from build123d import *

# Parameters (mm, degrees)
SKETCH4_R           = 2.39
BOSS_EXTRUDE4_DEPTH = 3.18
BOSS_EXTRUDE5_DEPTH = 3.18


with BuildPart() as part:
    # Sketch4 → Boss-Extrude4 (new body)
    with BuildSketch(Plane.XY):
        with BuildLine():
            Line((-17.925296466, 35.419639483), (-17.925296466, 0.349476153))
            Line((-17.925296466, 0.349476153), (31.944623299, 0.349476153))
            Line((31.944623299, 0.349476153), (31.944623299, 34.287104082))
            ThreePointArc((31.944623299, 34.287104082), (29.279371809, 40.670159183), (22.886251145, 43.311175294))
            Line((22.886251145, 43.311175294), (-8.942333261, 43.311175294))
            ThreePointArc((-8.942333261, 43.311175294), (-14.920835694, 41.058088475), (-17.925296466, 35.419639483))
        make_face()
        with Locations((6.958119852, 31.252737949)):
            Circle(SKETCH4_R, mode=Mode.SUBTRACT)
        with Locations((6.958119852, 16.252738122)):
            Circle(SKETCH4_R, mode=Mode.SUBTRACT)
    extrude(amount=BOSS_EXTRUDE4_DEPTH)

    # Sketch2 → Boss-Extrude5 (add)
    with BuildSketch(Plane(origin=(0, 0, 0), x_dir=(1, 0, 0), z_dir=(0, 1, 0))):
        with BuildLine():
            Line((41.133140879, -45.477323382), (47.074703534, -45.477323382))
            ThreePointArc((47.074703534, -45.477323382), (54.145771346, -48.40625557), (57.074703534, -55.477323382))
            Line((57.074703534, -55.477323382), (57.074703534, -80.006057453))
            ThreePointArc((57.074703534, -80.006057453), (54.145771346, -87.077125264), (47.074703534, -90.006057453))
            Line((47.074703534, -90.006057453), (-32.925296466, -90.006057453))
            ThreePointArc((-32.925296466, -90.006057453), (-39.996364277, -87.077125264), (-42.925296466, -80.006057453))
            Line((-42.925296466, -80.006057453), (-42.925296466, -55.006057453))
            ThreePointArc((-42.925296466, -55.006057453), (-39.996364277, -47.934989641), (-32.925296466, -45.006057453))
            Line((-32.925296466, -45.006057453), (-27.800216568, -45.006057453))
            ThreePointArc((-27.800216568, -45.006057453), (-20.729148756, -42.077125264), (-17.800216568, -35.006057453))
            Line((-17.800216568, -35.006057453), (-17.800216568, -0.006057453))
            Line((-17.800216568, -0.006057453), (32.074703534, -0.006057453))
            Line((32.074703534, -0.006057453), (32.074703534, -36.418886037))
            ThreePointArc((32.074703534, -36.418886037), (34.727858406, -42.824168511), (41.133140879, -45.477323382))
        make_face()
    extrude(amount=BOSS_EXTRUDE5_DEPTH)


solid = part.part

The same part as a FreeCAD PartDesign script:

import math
import FreeCAD as App
import Part
import Sketcher
from FreeCAD import Vector
Q = App.Units.Quantity

doc = App.newDocument("Part")
body = doc.addObject("PartDesign::Body", "Body")

# Sketch on XY plane
sketch1 = body.newObject("Sketcher::SketchObject", "Sketch")
sketch1.AttachmentSupport = (doc.getObject("XY_Plane"), [""])
sketch1.MapMode = "FlatFace"
sketch1.addGeometry([
    Part.LineSegment(Vector(-17.925296, 35.419639, 0), Vector(-17.925296, 0.349476, 0)),  # 0
    Part.LineSegment(Vector(-17.925296, 0.349476, 0), Vector(31.944623, 0.349476, 0)),  # 1
    Part.LineSegment(Vector(31.944623, 0.349476, 0), Vector(31.944623, 34.287104, 0)),  # 2
    Part.ArcOfCircle(Part.Circle(Vector(22.886251, 34.252738, 0), Vector(0, 0, 1), 9.058437), math.radians(0.217371), math.radians(90)),  # 3
    Part.LineSegment(Vector(22.886251, 43.311175, 0), Vector(-8.942333, 43.311175, 0)),  # 4
    Part.ArcOfCircle(Part.Circle(Vector(-8.942333, 34.252738, 0), Vector(0, 0, 1), 9.058437), math.radians(90), math.radians(172.598631)),  # 5
    Part.Circle(Vector(6.95812, 16.252738, 0), Vector(0, 0, 1), 2.39),  # 6
    Part.Circle(Vector(6.95812, 31.252738, 0), Vector(0, 0, 1), 2.39),  # 7
], False)
sketch1.addConstraint([
    Sketcher.Constraint("Coincident", 0, 2, 1, 1),
    Sketcher.Constraint("Coincident", 1, 2, 2, 1),
    Sketcher.Constraint("Coincident", 2, 2, 3, 1),
    Sketcher.Constraint("Coincident", 3, 2, 4, 1),
    Sketcher.Constraint("Coincident", 4, 2, 5, 1),
    Sketcher.Constraint("Coincident", 5, 2, 0, 1),
    Sketcher.Constraint("Vertical", 0),
    Sketcher.Constraint("Horizontal", 1),
    Sketcher.Constraint("Vertical", 2),
    Sketcher.Constraint("Horizontal", 4),
    Sketcher.Constraint("Diameter", 6, Q("4.78 mm")),
    Sketcher.Constraint("Diameter", 7, Q("4.78 mm")),
    Sketcher.Constraint("DistanceY", 6, 3, 5, 3, Q("18 mm")),
    Sketcher.Constraint("DistanceY", 6, 3, 3, 3, Q("18 mm")),
    Sketcher.Constraint("DistanceY", 6, 3, 7, 3, Q("15 mm")),
    Sketcher.Constraint("Radius", 3, Q("9.058437 mm")),
    Sketcher.Constraint("DistanceX", 1, 1, 1, 2, Q("49.86992 mm")),
    Sketcher.Constraint("DistanceY", 5, 3, 5, 2, Q("1.166902 mm")),
    Sketcher.Constraint("DistanceX", 4, 2, 4, 1, Q("31.828584 mm")),
    Sketcher.Constraint("DistanceY", 0, 2, 0, 1, Q("35.070163 mm")),
    Sketcher.Constraint("DistanceY", 2, 1, 2, 2, Q("33.937628 mm")),
    Sketcher.Constraint("DistanceX", -1, 1, 3, 3, Q("22.886251 mm")),
    Sketcher.Constraint("DistanceX", -1, 1, 6, 3, Q("6.95812 mm")),
    Sketcher.Constraint("DistanceY", -1, 1, 6, 3, Q("16.252738 mm")),
    Sketcher.Constraint("DistanceX", -1, 1, 7, 3, Q("6.95812 mm")),
    Sketcher.Constraint("DistanceX", -1, 1, 3, 2, Q("22.886251 mm")),
])
pad1 = body.newObject("PartDesign::Pad", "Pad")
pad1.Profile = sketch1
pad1.Length = 3.18

# Sketch on XZ plane
sketch2 = body.newObject("Sketcher::SketchObject", "Sketch001")
sketch2.AttachmentSupport = (doc.getObject("XZ_Plane"), [""])
sketch2.MapMode = "FlatFace"
sketch2.addGeometry([
    Part.LineSegment(Vector(47.074704, 45.477323, 0), Vector(41.133141, 45.477323, 0)),  # 0
    Part.ArcOfCircle(Part.Circle(Vector(41.133141, 36.418886, 0), Vector(0, 0, 1), 9.058437), math.radians(90), math.radians(180)),  # 1
    Part.LineSegment(Vector(32.074704, 36.418886, 0), Vector(32.074704, 0.006057, 0)),  # 2
    Part.LineSegment(Vector(32.074704, 0.006057, 0), Vector(-17.800217, 0.006057, 0)),  # 3
    Part.LineSegment(Vector(-17.800217, 0.006057, 0), Vector(-17.800217, 35.006057, 0)),  # 4
    Part.ArcOfCircle(Part.Circle(Vector(-27.800217, 35.006057, 0), Vector(0, 0, 1), 10), math.radians(0), math.radians(90)),  # 5
    Part.LineSegment(Vector(-27.800217, 45.006057, 0), Vector(-32.925296, 45.006057, 0)),  # 6
    Part.ArcOfCircle(Part.Circle(Vector(-32.925296, 55.006057, 0), Vector(0, 0, 1), 10), math.radians(-180), math.radians(-90)),  # 7
    Part.LineSegment(Vector(-42.925296, 55.006057, 0), Vector(-42.925296, 80.006057, 0)),  # 8
    Part.ArcOfCircle(Part.Circle(Vector(-32.925296, 80.006057, 0), Vector(0, 0, 1), 10), math.radians(90), math.radians(180)),  # 9
    Part.LineSegment(Vector(-32.925296, 90.006057, 0), Vector(47.074704, 90.006057, 0)),  # 10
    Part.ArcOfCircle(Part.Circle(Vector(47.074704, 80.006057, 0), Vector(0, 0, 1), 10), math.radians(0), math.radians(90)),  # 11
    Part.LineSegment(Vector(57.074704, 80.006057, 0), Vector(57.074704, 55.477323, 0)),  # 12
    Part.ArcOfCircle(Part.Circle(Vector(47.074704, 55.477323, 0), Vector(0, 0, 1), 10), math.radians(-90), math.radians(0)),  # 13
], False)
sketch2.addConstraint([
    Sketcher.Constraint("Tangent", 0, 2, 1, 1),
    Sketcher.Constraint("Tangent", 1, 2, 2, 1),
    Sketcher.Constraint("Coincident", 2, 2, 3, 1),
    Sketcher.Constraint("Coincident", 3, 2, 4, 1),
    Sketcher.Constraint("Tangent", 4, 2, 5, 1),
    Sketcher.Constraint("Tangent", 5, 2, 6, 1),
    Sketcher.Constraint("Tangent", 6, 2, 7, 2),
    Sketcher.Constraint("Tangent", 7, 1, 8, 1),
    Sketcher.Constraint("Tangent", 8, 2, 9, 2),
    Sketcher.Constraint("Tangent", 9, 1, 10, 1),
    Sketcher.Constraint("Tangent", 10, 2, 11, 2),
    Sketcher.Constraint("Tangent", 11, 1, 12, 1),
    Sketcher.Constraint("Tangent", 12, 2, 13, 2),
    Sketcher.Constraint("Tangent", 13, 1, 0, 1),
    Sketcher.Constraint("Horizontal", 0),
    Sketcher.Constraint("Vertical", 2),
    Sketcher.Constraint("Horizontal", 3),
    Sketcher.Constraint("Vertical", 4),
    Sketcher.Constraint("Horizontal", 6),
    Sketcher.Constraint("Vertical", 8),
    Sketcher.Constraint("Horizontal", 10),
    Sketcher.Constraint("Vertical", 12),
    Sketcher.Constraint("Equal", 5, 7),
    Sketcher.Constraint("Equal", 7, 9),
    Sketcher.Constraint("Equal", 9, 11),
    Sketcher.Constraint("Equal", 11, 13),
    Sketcher.Constraint("Radius", 5, Q("10 mm")),
    Sketcher.Constraint("DistanceX", 10, 1, 10, 2, Q("80 mm")),
    Sketcher.Constraint("DistanceY", 4, 1, 4, 2, Q("35 mm")),
    Sketcher.Constraint("DistanceY", 8, 1, 8, 2, Q("25 mm")),
    Sketcher.Constraint("DistanceX", 1, 2, 13, 3, Q("15 mm")),
    Sketcher.Constraint("Radius", 1, Q("9.058437 mm")),
    Sketcher.Constraint("DistanceX", 3, 2, 3, 1, Q("49.87492 mm")),
    Sketcher.Constraint("DistanceY", 2, 2, 2, 1, Q("36.412829 mm")),
    Sketcher.Constraint("DistanceX", -1, 1, 1, 3, Q("41.133141 mm")),
    Sketcher.Constraint("DistanceY", -1, 1, 1, 3, Q("36.418886 mm")),
])
pad2 = body.newObject("PartDesign::Pad", "Pad001")
pad2.Profile = sketch2
pad2.Length = 3.18
pad2.Reversed = True

doc.recompute()
